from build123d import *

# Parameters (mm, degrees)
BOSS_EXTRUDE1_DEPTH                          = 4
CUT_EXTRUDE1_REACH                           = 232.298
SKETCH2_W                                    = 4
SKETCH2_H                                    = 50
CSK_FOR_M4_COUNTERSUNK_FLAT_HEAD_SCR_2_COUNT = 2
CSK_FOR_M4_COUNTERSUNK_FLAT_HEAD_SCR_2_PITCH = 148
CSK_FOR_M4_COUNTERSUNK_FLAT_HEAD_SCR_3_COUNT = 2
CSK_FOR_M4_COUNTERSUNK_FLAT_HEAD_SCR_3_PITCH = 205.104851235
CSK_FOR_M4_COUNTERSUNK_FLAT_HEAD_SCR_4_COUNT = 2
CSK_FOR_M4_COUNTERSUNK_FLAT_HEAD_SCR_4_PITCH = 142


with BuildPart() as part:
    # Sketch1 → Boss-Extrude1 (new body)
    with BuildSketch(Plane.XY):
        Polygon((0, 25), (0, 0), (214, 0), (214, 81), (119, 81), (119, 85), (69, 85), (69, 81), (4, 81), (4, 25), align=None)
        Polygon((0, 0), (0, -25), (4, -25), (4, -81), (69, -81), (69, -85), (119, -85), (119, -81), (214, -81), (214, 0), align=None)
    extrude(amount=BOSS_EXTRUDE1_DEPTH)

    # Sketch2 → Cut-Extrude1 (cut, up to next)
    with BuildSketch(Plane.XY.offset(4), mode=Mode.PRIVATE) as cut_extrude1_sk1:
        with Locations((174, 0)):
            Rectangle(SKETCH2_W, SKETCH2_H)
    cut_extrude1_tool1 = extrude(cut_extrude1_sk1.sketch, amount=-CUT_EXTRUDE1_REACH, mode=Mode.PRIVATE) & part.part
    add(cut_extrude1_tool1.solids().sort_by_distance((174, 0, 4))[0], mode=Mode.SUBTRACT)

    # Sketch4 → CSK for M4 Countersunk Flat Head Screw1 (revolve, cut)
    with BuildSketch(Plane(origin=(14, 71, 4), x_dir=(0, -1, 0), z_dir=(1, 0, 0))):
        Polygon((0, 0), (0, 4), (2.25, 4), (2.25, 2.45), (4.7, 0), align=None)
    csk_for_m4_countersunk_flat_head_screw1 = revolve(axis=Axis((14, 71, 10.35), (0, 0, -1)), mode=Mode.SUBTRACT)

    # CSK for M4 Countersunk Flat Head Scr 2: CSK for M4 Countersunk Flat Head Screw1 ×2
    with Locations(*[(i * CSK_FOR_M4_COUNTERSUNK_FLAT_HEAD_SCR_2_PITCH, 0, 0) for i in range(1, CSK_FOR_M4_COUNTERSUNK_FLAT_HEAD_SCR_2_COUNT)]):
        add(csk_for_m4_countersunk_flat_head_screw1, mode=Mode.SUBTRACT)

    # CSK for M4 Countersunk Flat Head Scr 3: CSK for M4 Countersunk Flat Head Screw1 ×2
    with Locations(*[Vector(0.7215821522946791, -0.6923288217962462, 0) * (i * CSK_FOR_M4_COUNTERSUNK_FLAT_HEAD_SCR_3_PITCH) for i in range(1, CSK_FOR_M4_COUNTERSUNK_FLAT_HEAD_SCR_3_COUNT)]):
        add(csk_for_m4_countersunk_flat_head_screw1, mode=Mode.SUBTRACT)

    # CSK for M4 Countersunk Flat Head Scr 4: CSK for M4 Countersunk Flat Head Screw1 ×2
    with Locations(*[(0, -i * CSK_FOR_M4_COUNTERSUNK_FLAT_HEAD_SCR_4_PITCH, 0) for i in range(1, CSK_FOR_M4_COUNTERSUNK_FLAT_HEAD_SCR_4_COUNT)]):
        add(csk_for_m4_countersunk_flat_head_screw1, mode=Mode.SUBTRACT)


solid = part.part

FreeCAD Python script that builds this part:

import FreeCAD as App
import Part
import Sketcher
from FreeCAD import Vector
Q = App.Units.Quantity


def add_polygon(sketch, points):
    """Adds a closed chain of lines whose ends are joined by coincident constraints."""
    first, n = sketch.GeometryCount, len(points)
    for a, b in zip(points, points[1:] + points[:1]):
        sketch.addGeometry(Part.LineSegment(App.Vector(*a, 0), App.Vector(*b, 0)), False)
    for i in range(n):
        sketch.addConstraint(Sketcher.Constraint("Coincident", first + i, 2, first + (i + 1) % n, 1))

doc = App.newDocument("Part")
body = doc.addObject("PartDesign::Body", "Body")

sketch1 = doc.addObject("Sketcher::SketchObject", "Sketch")
body.addObject(sketch1)
sketch1.AttachmentSupport = (doc.XY_Plane, [""])
sketch1.MapMode = "FlatFace"
add_polygon(sketch1, [(0, 25), (0, -25), (4, -25), (4, -81), (69, -81), (69, -85), (119, -85), (119, -81), (214, -81), (214, 81), (119, 81), (119, 85), (69, 85), (69, 81), (4, 81), (4, 25)])
sketch1.addConstraint(Sketcher.Constraint("Vertical", 0))
sketch1.addConstraint(Sketcher.Constraint("Horizontal", 1))
sketch1.addConstraint(Sketcher.Constraint("Vertical", 2))
sketch1.addConstraint(Sketcher.Constraint("Horizontal", 3))
sketch1.addConstraint(Sketcher.Constraint("Vertical", 4))
sketch1.addConstraint(Sketcher.Constraint("Horizontal", 5))
sketch1.addConstraint(Sketcher.Constraint("Vertical", 6))
sketch1.addConstraint(Sketcher.Constraint("Horizontal", 7))
sketch1.addConstraint(Sketcher.Constraint("Vertical", 8))
sketch1.addConstraint(Sketcher.Constraint("Horizontal", 9))
sketch1.addConstraint(Sketcher.Constraint("Vertical", 10))
sketch1.addConstraint(Sketcher.Constraint("Horizontal", 11))
sketch1.addConstraint(Sketcher.Constraint("Vertical", 12))
sketch1.addConstraint(Sketcher.Constraint("Horizontal", 13))
sketch1.addConstraint(Sketcher.Constraint("Vertical", 14))
sketch1.addConstraint(Sketcher.Constraint("Horizontal", 15))
sketch1.addConstraint(Sketcher.Constraint("Symmetric", 0, 2, 15, 2, -1, 1))
sketch1.addConstraint(Sketcher.Constraint("Symmetric", 6, 2, 9, 2, -1))
sketch1.addConstraint(Sketcher.Constraint("Symmetric", 4, 2, 11, 2, -1))
sketch1.addConstraint(Sketcher.Constraint("Symmetric", 2, 2, 13, 2, -1))
sketch1.addConstraint(Sketcher.Constraint("Horizontal", 3, 2, 6, 2))
sketch1.addConstraint(Sketcher.Constraint("Equal", 11, 0))
sketch1.addConstraint(Sketcher.Constraint("Equal", 15, 4))
sketch1.addConstraint(Sketcher.Constraint("DistanceX", 1, 1, 1, 2, Q("4 mm")))
sketch1.addConstraint(Sketcher.Constraint("DistanceX", 3, 1, 3, 2, Q("65 mm")))
sketch1.addConstraint(Sketcher.Constraint("DistanceX", 5, 1, 5, 2, Q("50 mm")))
sketch1.addConstraint(Sketcher.Constraint("DistanceX", 7, 1, 7, 2, Q("95 mm")))
sketch1.addConstraint(Sketcher.Constraint("DistanceY", 2, 2, 2, 1, Q("56 mm")))
pad1 = doc.addObject("PartDesign::Pad", "Pad")
body.addObject(pad1)
pad1.Profile = sketch1
pad1.Length = 4

sketch2 = doc.addObject("Sketcher::SketchObject", "Sketch001")
body.addObject(sketch2)
sketch2.AttachmentSupport = (doc.XY_Plane, [""])
sketch2.MapMode = "FlatFace"
sketch2.AttachmentOffset = App.Placement(Vector(0, 0, 4), App.Rotation())
add_polygon(sketch2, [(172, 25), (172, -25), (176, -25), (176, 25)])
sketch2.addConstraint(Sketcher.Constraint("Vertical", 0))
sketch2.addConstraint(Sketcher.Constraint("Horizontal", 1))
sketch2.addConstraint(Sketcher.Constraint("Vertical", 2))
sketch2.addConstraint(Sketcher.Constraint("Horizontal", 3))
sketch2.addConstraint(Sketcher.Constraint("DistanceX", 1, 1, 1, 2, Q("4 mm")))
sketch2.addConstraint(Sketcher.Constraint("DistanceY", 0, 2, 0, 1, Q("50 mm")))
sketch2.addConstraint(Sketcher.Constraint("DistanceX", -1, 1, 0, 2, Q("172 mm")))
sketch2.addConstraint(Sketcher.Constraint("DistanceY", 0, 2, -1, 1, Q("25 mm")))
pocket1 = doc.addObject("PartDesign::Pocket", "Pocket")
body.addObject(pocket1)
pocket1.Profile = sketch2
pocket1.Type = "UpToFirst"

sketch3 = doc.addObject("Sketcher::SketchObject", "Sketch002")
body.addObject(sketch3)
sketch3.AttachmentSupport = (doc.YZ_Plane, [""])
sketch3.MapMode = "FlatFace"
sketch3.AttachmentOffset = App.Placement(Vector(0, 0, 14), App.Rotation())
add_polygon(sketch3, [(71, 0), (71, 4), (66.3, 4), (68.75, 1.55), (68.75, 0)])
sketch3.addGeometry(Part.LineSegment(Vector(71, 4, 0), Vector(71, 0, 0)), True)
sketch3.addConstraint(Sketcher.Constraint("Vertical", 0))
sketch3.addConstraint(Sketcher.Constraint("Horizontal", 1))
sketch3.addConstraint(Sketcher.Constraint("Vertical", 3))
sketch3.addConstraint(Sketcher.Constraint("Horizontal", 4))
sketch3.addConstraint(Sketcher.Constraint("Vertical", 5))
sketch3.addConstraint(Sketcher.Constraint("Coincident", 5, 1, 0, 2))
sketch3.addConstraint(Sketcher.Constraint("PointOnObject", 3, 2, -1))
sketch3.addConstraint(Sketcher.Constraint("PointOnObject", 5, 2, -1))
sketch3.addConstraint(Sketcher.Constraint("DistanceY", 0, 1, 0, 2, Q("4 mm")))
sketch3.addConstraint(Sketcher.Constraint("Angle", 2, Q("-45 deg")))
sketch3.addConstraint(Sketcher.Constraint("DistanceX", 1, 2, 1, 1, Q("4.7 mm")))
sketch3.addConstraint(Sketcher.Constraint("DistanceX", -1, 1, 0, 2, Q("71 mm")))
sketch3.addConstraint(Sketcher.Constraint("DistanceX", 4, 1, 4, 2, Q("2.25 mm")))
groove = doc.addObject("PartDesign::Groove", "Groove")
body.addObject(groove)
groove.Profile = sketch3
groove.ReferenceAxis = (sketch3, ["Axis0"])
groove.Angle = 360
doc.recompute()

linearpattern = doc.addObject("PartDesign::LinearPattern", "LinearPattern")
body.addObject(linearpattern)
linearpattern.Originals = [groove]
linearpattern.Direction = (doc.X_Axis, [""])
linearpattern.Mode = "offset"
linearpattern.Offset = 148
linearpattern.Occurrences = 2
body.Tip = linearpattern
doc.recompute()

datumline = doc.addObject("PartDesign::Line", "DatumLine")
body.addObject(datumline)
datumline.Placement = App.Placement(Vector(0, 0, 0), App.Rotation(Vector(0, 0, 1), Vector(0.721582152, -0.692328822, 0)))
linearpattern2 = doc.addObject("PartDesign::LinearPattern", "LinearPattern001")
body.addObject(linearpattern2)
linearpattern2.Originals = [groove]
linearpattern2.Direction = (datumline, [""])
linearpattern2.Mode = "offset"
linearpattern2.Offset = 205.104851
linearpattern2.Occurrences = 2
body.Tip = linearpattern2
doc.recompute()

linearpattern3 = doc.addObject("PartDesign::LinearPattern", "LinearPattern002")
body.addObject(linearpattern3)
linearpattern3.Originals = [groove]
linearpattern3.Direction = (doc.Y_Axis, [""])
linearpattern3.Mode = "offset"
linearpattern3.Offset = 142
linearpattern3.Occurrences = 2
linearpattern3.Reversed = True
body.Tip = linearpattern3

doc.recompute()
